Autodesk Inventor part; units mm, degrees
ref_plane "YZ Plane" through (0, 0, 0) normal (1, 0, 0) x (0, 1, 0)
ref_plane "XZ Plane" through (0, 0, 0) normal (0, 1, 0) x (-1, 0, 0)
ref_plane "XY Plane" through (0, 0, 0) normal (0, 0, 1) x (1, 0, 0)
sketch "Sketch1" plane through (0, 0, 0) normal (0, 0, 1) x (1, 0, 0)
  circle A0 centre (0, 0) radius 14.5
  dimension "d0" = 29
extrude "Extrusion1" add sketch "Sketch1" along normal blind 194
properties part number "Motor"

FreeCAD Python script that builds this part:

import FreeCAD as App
import Part
import Sketcher
from FreeCAD import Vector

doc = App.newDocument("Part")
params = doc.addObject("Spreadsheet::Sheet", "Params")
for row, (alias, value) in enumerate([
    ("sketch1_diameter", "29 mm"),
    ("pad1_length", "194 mm"),
], start=1):
    params.set(f"A{row}", alias)
    params.set(f"B{row}", "=" + value)
    params.setAlias(f"B{row}", alias)

body = doc.addObject("PartDesign::Body", "Body")

sketch1 = doc.addObject("Sketcher::SketchObject", "Sketch")
body.addObject(sketch1)
sketch1.AttachmentSupport = (doc.XY_Plane, [""])
sketch1.MapMode = "FlatFace"
sketch1.addGeometry(Part.Circle(Vector(0, 0, 0), Vector(0, 0, 1), 14), False)
sketch1.addConstraint(Sketcher.Constraint("Coincident", 0, 3, -1, 1))
sketch1.addConstraint(Sketcher.Constraint("Diameter", 0, 29.0))
sketch1.setExpression("Constraints[1]", "Params.sketch1_diameter")
pad1 = doc.addObject("PartDesign::Pad", "Pad")
body.addObject(pad1)
pad1.Profile = sketch1
pad1.setExpression("Length", "Params.pad1_length")

doc.recompute()
